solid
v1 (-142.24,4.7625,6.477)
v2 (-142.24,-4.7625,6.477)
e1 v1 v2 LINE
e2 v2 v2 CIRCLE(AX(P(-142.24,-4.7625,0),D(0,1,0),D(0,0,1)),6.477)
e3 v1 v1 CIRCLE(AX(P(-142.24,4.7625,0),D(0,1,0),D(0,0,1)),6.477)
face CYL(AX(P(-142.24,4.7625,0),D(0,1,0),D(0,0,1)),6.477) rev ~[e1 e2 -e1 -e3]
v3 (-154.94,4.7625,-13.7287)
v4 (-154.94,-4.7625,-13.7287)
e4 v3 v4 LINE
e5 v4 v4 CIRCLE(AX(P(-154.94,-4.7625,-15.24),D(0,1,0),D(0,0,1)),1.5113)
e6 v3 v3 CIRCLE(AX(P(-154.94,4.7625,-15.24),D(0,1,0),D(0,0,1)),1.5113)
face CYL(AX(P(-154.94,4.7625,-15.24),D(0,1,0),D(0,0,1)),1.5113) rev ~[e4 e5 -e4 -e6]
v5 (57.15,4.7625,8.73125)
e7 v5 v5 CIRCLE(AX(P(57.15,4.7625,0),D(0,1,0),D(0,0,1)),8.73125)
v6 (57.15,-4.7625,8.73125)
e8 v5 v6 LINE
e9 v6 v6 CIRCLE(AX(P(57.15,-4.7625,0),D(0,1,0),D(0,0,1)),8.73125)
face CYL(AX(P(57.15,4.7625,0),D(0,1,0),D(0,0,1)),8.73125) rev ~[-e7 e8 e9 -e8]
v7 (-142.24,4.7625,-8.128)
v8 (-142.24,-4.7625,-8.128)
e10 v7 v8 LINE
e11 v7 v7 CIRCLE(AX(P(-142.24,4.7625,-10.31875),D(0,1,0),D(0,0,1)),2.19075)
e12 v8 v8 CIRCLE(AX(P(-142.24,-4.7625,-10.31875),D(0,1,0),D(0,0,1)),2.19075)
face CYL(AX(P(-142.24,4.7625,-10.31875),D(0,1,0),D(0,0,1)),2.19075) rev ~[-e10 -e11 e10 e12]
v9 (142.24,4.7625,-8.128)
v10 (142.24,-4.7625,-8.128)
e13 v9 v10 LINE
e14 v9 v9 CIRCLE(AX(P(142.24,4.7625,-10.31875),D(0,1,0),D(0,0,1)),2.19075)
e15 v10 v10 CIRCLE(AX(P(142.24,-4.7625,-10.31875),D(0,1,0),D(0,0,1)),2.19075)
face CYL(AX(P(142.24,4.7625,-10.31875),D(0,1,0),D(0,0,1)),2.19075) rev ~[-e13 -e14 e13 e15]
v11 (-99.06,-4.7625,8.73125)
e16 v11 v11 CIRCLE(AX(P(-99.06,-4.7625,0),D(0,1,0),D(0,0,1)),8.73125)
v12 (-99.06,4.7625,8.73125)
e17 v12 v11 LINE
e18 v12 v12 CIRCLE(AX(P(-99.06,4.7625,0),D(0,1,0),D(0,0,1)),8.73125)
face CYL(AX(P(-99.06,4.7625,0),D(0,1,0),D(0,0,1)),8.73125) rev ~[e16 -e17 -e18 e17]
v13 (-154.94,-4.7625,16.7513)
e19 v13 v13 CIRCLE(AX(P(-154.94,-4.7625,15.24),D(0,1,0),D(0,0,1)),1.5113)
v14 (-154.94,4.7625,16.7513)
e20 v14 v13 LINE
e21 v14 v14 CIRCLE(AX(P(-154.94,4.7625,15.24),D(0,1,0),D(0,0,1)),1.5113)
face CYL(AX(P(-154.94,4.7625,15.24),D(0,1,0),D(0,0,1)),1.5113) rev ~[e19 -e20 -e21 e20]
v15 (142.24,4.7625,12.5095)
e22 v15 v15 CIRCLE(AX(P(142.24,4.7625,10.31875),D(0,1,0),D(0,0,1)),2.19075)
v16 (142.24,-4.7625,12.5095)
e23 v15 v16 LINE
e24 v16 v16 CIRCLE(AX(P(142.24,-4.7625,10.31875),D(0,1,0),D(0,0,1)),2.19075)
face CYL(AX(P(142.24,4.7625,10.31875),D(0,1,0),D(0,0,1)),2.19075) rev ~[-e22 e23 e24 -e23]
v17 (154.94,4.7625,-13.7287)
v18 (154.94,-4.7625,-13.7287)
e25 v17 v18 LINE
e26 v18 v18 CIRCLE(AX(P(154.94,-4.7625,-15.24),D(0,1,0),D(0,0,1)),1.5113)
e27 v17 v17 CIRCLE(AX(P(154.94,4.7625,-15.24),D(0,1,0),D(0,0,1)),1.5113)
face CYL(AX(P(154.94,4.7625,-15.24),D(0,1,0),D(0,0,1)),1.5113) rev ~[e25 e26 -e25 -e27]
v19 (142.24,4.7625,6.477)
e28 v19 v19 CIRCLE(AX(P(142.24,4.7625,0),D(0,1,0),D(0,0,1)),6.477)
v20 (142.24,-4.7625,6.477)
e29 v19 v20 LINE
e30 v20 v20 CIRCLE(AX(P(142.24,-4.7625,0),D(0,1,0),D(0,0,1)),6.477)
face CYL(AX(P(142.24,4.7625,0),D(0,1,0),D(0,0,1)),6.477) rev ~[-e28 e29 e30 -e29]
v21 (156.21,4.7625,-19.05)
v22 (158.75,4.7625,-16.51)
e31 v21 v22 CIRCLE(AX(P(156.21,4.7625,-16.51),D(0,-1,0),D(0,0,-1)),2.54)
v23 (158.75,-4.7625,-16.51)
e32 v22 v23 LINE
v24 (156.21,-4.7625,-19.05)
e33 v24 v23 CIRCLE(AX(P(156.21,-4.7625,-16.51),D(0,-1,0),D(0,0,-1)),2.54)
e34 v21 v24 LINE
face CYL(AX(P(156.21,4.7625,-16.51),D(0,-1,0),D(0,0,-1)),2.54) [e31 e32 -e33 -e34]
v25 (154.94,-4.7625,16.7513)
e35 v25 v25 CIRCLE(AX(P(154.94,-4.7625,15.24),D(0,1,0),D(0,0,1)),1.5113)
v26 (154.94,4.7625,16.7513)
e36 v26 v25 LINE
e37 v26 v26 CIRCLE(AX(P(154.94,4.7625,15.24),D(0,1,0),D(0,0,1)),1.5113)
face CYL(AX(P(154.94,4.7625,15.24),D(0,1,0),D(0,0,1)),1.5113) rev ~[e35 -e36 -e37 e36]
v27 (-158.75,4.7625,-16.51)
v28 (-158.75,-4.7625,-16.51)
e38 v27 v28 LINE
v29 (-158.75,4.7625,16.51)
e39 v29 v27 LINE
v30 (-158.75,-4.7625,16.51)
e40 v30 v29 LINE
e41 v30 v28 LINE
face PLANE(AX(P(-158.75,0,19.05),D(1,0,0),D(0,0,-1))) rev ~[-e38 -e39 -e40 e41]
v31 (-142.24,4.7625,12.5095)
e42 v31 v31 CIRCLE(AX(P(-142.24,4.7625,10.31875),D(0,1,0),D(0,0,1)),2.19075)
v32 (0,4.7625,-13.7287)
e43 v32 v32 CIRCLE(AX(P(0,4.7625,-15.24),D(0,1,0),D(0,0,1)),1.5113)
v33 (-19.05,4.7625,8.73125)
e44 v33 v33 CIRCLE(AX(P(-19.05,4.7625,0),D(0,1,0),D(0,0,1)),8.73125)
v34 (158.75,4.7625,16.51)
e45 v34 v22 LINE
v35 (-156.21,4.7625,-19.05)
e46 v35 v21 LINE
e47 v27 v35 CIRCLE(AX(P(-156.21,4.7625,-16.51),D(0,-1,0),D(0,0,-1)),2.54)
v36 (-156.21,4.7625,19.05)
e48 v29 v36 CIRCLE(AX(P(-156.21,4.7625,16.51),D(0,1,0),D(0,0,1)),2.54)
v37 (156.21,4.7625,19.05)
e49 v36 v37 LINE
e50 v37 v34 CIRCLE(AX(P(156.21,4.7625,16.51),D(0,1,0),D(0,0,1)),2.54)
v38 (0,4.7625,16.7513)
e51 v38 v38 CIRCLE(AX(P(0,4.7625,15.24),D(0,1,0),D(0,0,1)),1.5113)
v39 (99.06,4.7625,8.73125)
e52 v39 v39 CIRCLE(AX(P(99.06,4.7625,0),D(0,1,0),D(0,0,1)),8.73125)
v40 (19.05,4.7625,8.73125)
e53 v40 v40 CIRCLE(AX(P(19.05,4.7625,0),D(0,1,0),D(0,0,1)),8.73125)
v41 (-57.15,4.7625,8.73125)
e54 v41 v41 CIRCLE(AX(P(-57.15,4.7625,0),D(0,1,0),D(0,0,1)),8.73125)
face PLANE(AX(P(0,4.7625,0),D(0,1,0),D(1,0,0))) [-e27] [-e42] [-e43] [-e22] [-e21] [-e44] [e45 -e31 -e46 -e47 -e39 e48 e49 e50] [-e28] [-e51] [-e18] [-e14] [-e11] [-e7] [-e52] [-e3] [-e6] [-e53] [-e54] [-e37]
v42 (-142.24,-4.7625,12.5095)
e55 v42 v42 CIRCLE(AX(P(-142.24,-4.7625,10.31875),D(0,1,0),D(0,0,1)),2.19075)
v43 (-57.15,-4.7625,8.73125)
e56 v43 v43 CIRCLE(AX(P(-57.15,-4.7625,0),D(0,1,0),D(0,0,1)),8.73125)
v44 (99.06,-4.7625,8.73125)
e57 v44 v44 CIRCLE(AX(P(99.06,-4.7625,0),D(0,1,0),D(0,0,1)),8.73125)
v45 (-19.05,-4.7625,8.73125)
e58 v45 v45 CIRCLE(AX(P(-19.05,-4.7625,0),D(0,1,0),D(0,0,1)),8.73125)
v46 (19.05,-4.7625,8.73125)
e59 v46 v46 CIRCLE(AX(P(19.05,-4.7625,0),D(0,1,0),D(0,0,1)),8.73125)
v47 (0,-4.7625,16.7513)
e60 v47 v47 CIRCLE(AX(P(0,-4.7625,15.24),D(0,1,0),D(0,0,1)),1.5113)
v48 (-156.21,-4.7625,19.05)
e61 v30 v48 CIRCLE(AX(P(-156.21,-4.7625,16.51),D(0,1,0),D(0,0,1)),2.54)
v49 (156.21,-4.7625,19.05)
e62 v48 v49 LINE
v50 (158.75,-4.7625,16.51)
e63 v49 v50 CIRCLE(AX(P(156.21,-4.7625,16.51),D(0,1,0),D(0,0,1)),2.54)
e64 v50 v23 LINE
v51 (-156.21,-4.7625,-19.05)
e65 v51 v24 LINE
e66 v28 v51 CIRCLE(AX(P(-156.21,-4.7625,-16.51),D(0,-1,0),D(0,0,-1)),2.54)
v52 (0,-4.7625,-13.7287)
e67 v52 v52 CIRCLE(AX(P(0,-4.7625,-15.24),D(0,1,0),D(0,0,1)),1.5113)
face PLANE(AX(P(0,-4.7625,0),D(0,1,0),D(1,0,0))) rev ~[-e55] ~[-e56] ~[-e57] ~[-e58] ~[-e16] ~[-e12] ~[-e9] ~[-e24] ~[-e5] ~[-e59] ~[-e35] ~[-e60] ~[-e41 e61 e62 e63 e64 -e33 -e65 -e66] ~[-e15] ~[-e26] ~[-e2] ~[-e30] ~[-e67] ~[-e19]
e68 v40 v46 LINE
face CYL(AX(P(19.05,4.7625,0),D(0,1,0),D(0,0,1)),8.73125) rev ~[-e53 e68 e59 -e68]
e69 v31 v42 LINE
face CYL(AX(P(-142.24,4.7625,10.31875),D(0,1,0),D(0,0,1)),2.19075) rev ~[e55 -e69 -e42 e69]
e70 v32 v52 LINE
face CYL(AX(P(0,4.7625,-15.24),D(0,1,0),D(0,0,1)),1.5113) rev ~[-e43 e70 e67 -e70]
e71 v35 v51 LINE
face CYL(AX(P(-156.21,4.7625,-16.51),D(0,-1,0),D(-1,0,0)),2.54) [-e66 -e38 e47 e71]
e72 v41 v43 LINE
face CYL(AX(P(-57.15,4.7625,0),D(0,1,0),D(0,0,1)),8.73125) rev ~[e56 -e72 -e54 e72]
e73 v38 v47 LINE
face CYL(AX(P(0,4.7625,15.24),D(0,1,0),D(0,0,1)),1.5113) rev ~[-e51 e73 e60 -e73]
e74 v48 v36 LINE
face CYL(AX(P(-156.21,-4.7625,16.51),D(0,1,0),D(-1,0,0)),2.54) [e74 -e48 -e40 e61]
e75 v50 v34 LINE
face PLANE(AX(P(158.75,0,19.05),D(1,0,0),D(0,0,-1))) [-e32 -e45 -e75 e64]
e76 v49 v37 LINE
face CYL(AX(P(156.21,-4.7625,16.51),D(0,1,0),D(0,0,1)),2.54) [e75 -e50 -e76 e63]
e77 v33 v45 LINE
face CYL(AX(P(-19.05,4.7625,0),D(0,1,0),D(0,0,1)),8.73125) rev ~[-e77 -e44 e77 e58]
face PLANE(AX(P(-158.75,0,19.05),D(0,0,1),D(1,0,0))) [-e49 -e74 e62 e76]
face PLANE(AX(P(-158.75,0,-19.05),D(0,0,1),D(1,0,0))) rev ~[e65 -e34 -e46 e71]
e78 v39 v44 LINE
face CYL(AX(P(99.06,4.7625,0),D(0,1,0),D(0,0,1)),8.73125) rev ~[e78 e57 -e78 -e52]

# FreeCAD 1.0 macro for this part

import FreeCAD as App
import Part
import Sketcher
from FreeCAD import Vector
Q = App.Units.Quantity


def edges_at(feature, points):
    """Names of the edges that pass closest to the given points."""
    edges = feature.Shape.Edges
    near = lambda p: min(range(len(edges)), key=lambda i: edges[i].distToShape(Part.Vertex(*p))[0])
    return sorted({f"Edge{near(p) + 1}" for p in points})


def add_polygon(sketch, points):
    """Adds a closed chain of lines whose ends are joined by coincident constraints."""
    first, n = sketch.GeometryCount, len(points)
    for a, b in zip(points, points[1:] + points[:1]):
        sketch.addGeometry(Part.LineSegment(App.Vector(*a, 0), App.Vector(*b, 0)), False)
    for i in range(n):
        sketch.addConstraint(Sketcher.Constraint("Coincident", first + i, 2, first + (i + 1) % n, 1))

doc = App.newDocument("Part")
body = doc.addObject("PartDesign::Body", "Body")

# Sketch on XZ plane
sketch1 = doc.addObject("Sketcher::SketchObject", "Sketch")
body.addObject(sketch1)
sketch1.AttachmentSupport = (doc.XZ_Plane, [""])
sketch1.MapMode = "FlatFace"
add_polygon(sketch1, [(-159, -19), (-159, 19), (159, 19), (159, -19)])  # lines 0-3
sketch1.addConstraint([
    Sketcher.Constraint("Vertical", 0),
    Sketcher.Constraint("Horizontal", 1),
    Sketcher.Constraint("Vertical", 2),
    Sketcher.Constraint("Horizontal", 3),
    Sketcher.Constraint("Symmetric", 0, 2, 2, 2, -1, 1),
    Sketcher.Constraint("DistanceX", 1, 1, 1, 2, Q("12.5 in")),
    Sketcher.Constraint("DistanceY", 0, 1, 0, 2, Q("1.5 in")),
])
pad1 = doc.addObject("PartDesign::Pad", "Pad")
body.addObject(pad1)
pad1.Profile = sketch1
pad1.Length = Q("0.375 in")
pad1.Midplane = True

# Sketch on XZ plane
sketch2 = doc.addObject("Sketcher::SketchObject", "Sketch001")
body.addObject(sketch2)
sketch2.AttachmentSupport = (doc.XZ_Plane, [""])
sketch2.MapMode = "FlatFace"
sketch2.AttachmentOffset = App.Placement(Vector(0, 0, -0.1875 * 25.4), App.Rotation())
sketch2.addGeometry([
    Part.Circle(Vector(-99.1, 0, 0), Vector(0, 0, 1), 4.4),  # 0
    Part.Circle(Vector(-57.1, 0, 0), Vector(0, 0, 1), 4.4),  # 1
    Part.Circle(Vector(-19.1, 0, 0), Vector(0, 0, 1), 4.4),  # 2
    Part.Circle(Vector(19.1, 0, 0), Vector(0, 0, 1), 4.4),  # 3
    Part.Circle(Vector(57.1, 0, 0), Vector(0, 0, 1), 4.4),  # 4
    Part.Circle(Vector(-142.2, 0, 0), Vector(0, 0, 1), 6.5),  # 5
    Part.Circle(Vector(-142.2, 10.3, 0), Vector(0, 0, 1), 2.2),  # 6
    Part.Circle(Vector(-142.2, -10.3, 0), Vector(0, 0, 1), 2.2),  # 7
    Part.Circle(Vector(142.2, 0, 0), Vector(0, 0, 1), 6.5),  # 8
    Part.Circle(Vector(142.2, 10.3, 0), Vector(0, 0, 1), 2.2),  # 9
    Part.Circle(Vector(142.2, -10.3, 0), Vector(0, 0, 1), 2.2),  # 10
    Part.Circle(Vector(99.1, 0, 0), Vector(0, 0, 1), 4.4),  # 11
], False)
sketch2.addConstraint([
    Sketcher.Constraint("Equal", 0, 1),
    Sketcher.Constraint("Equal", 1, 2),
    Sketcher.Constraint("Equal", 2, 3),
    Sketcher.Constraint("Equal", 3, 4),
    Sketcher.Constraint("Equal", 6, 7),
    Sketcher.Constraint("Equal", 5, 8),
    Sketcher.Constraint("Equal", 7, 9),
    Sketcher.Constraint("Equal", 9, 10),
    Sketcher.Constraint("Equal", 4, 11),
    Sketcher.Constraint("Symmetric", 2, 3, 3, 3, -1, 1),
    Sketcher.Constraint("Symmetric", 1, 3, 4, 3, -1, 1),
    Sketcher.Constraint("Symmetric", 5, 3, 8, 3, -1, 1),
    Sketcher.Constraint("Symmetric", 7, 3, 9, 3, -1, 1),
    Sketcher.Constraint("Symmetric", 6, 3, 10, 3, -1, 1),
    Sketcher.Constraint("Symmetric", 0, 3, 11, 3, -1, 1),
    Sketcher.Constraint("Symmetric", 6, 3, 9, 3, -2),
    Sketcher.Constraint("PointOnObject", 0, 3, -1),
    Sketcher.Constraint("PointOnObject", 1, 3, -1),
    Sketcher.Constraint("PointOnObject", 2, 3, -1),
    Sketcher.Constraint("PointOnObject", 5, 3, -1),
    Sketcher.Constraint("Vertical", 5, 3, 6, 3),
    Sketcher.Constraint("Diameter", 5, Q("0.51 in")),
    Sketcher.Constraint("Diameter", 0, Q("0.348 in")),
    Sketcher.Constraint("DistanceX", 1, 3, 3, 3, Q("3 in")),
    Sketcher.Constraint("Diameter", 6, Q("0.1725 in")),
    Sketcher.Constraint("DistanceX", 0, 3, -1, 1, Q("3.9 in")),
    Sketcher.Constraint("DistanceX", 5, 3, -1, 1, Q("5.6 in")),
    Sketcher.Constraint("DistanceX", 1, 3, 2, 3, Q("1.5 in")),
    Sketcher.Constraint("DistanceY", -1, 1, 6, 3, Q("0.40625 in")),
])
pocket1 = doc.addObject("PartDesign::Pocket", "Pocket")
body.addObject(pocket1)
pocket1.Profile = sketch2
pocket1.Type = "ThroughAll"
pocket1.Reversed = True

# Sketch on XZ plane
sketch3 = doc.addObject("Sketcher::SketchObject", "Sketch002")
body.addObject(sketch3)
sketch3.AttachmentSupport = (doc.XZ_Plane, [""])
sketch3.MapMode = "FlatFace"
sketch3.AttachmentOffset = App.Placement(Vector(0, 0, -0.1875 * 25.4), App.Rotation())
sketch3.addGeometry([
    Part.Circle(Vector(-154.9, -15.2, 0), Vector(0, 0, 1), 1.5),  # 0
    Part.Circle(Vector(-154.9, 15.2, 0), Vector(0, 0, 1), 1.5),  # 1
    Part.Circle(Vector(154.9, 15.2, 0), Vector(0, 0, 1), 1.5),  # 2
    Part.Circle(Vector(154.9, -15.2, 0), Vector(0, 0, 1), 1.5),  # 3
    Part.Circle(Vector(0, -15.2, 0), Vector(0, 0, 1), 1.5),  # 4
    Part.Circle(Vector(0, 15.2, 0), Vector(0, 0, 1), 1.5),  # 5
], False)
sketch3.addConstraint([
    Sketcher.Constraint("Equal", 0, 1),
    Sketcher.Constraint("Equal", 1, 2),
    Sketcher.Constraint("Equal", 2, 3),
    Sketcher.Constraint("Equal", 3, 4),
    Sketcher.Constraint("Equal", 4, 5),
    Sketcher.Constraint("Symmetric", 0, 3, 2, 3, -1, 1),
    Sketcher.Constraint("Symmetric", 1, 3, 3, 3, -1, 1),
    Sketcher.Constraint("Symmetric", 4, 3, 5, 3, -1, 1),
    Sketcher.Constraint("Symmetric", 1, 3, 2, 3, -2),
    Sketcher.Constraint("PointOnObject", 4, 3, -2),
    Sketcher.Constraint("Horizontal", 3, 3, 4, 3),
    Sketcher.Constraint("Diameter", 0, Q("0.119 in")),
    Sketcher.Constraint("DistanceX", 0, 3, -1, 1, Q("6.1 in")),
    Sketcher.Constraint("DistanceY", 0, 3, -1, 1, Q("0.6 in")),
])
pocket2 = doc.addObject("PartDesign::Pocket", "Pocket001")
body.addObject(pocket2)
pocket2.Profile = sketch3
pocket2.Type = "ThroughAll"
pocket2.Reversed = True
doc.recompute()

fillet = doc.addObject("PartDesign::Fillet", "Fillet")
body.addObject(fillet)
fillet.Base = (pocket2, edges_at(pocket2, [
    (158.75, 0, 19.05),
    (-158.75, 0, 19.05),
    (-158.75, 0, -19.05),
    (158.75, 0, -19.05),
]))
fillet.Radius = Q("0.1 in")

# Sketch on XZ plane
sketch4 = doc.addObject("Sketcher::SketchObject", "Sketch003")
body.addObject(sketch4)
sketch4.AttachmentSupport = (doc.XZ_Plane, [""])
sketch4.MapMode = "FlatFace"
sketch4.AttachmentOffset = App.Placement(Vector(0, 0, -0.1875 * 25.4), App.Rotation())
sketch4.addGeometry([
    Part.Circle(Vector(99, 0, 0), Vector(0, 0, 1), 9),  # 0
    Part.Circle(Vector(-99, 0, 0), Vector(0, 0, 1), 9),  # 1
    Part.Circle(Vector(-57, 0, 0), Vector(0, 0, 1), 9),  # 2
    Part.Circle(Vector(-19, 0, 0), Vector(0, 0, 1), 9),  # 3
    Part.Circle(Vector(19, 0, 0), Vector(0, 0, 1), 9),  # 4
    Part.Circle(Vector(57, 0, 0), Vector(0, 0, 1), 9),  # 5
], False)
sketch4.addConstraint([
    Sketcher.Constraint("Equal", 0, 1),
    Sketcher.Constraint("Equal", 1, 2),
    Sketcher.Constraint("Equal", 2, 3),
    Sketcher.Constraint("Equal", 3, 4),
    Sketcher.Constraint("Equal", 4, 5),
    Sketcher.Constraint("Symmetric", 0, 3, 1, 3, -1, 1),
    Sketcher.Constraint("Symmetric", 3, 3, 4, 3, -1, 1),
    Sketcher.Constraint("Symmetric", 2, 3, 5, 3, -1, 1),
    Sketcher.Constraint("PointOnObject", 0, 3, -1),
    Sketcher.Constraint("PointOnObject", 2, 3, -1),
    Sketcher.Constraint("PointOnObject", 3, 3, -1),
    Sketcher.Constraint("Diameter", 0, Q("0.6875 in")),
    Sketcher.Constraint("DistanceX", 2, 3, 4, 3, Q("3 in")),
    Sketcher.Constraint("DistanceX", -1, 1, 0, 3, Q("3.9 in")),
    Sketcher.Constraint("DistanceX", 2, 3, 3, 3, Q("1.5 in")),
])
pocket3 = doc.addObject("PartDesign::Pocket", "Pocket002")
body.addObject(pocket3)
pocket3.Profile = sketch4
pocket3.Type = "ThroughAll"
pocket3.Reversed = True

doc.recompute()
